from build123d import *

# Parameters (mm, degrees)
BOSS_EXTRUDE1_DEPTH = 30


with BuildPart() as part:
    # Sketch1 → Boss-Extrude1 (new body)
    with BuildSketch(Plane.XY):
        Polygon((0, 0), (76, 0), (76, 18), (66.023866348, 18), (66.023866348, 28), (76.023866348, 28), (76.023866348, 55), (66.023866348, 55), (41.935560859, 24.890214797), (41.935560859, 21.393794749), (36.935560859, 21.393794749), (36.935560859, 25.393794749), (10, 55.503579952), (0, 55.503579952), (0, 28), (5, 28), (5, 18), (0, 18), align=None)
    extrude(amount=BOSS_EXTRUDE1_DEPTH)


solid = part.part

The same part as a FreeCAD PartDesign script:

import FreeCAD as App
import Part
import Sketcher

V = App.Vector

doc = App.newDocument("Part")
body = doc.addObject("PartDesign::Body", "Body")

# Sketch on XY plane
sketch1 = doc.addObject("Sketcher::SketchObject", "Sketch")
body.addObject(sketch1)
sketch1.AttachmentSupport = (doc.XY_Plane, [""])
sketch1.MapMode = "FlatFace"
sketch1.addGeometry(Part.LineSegment(V(0, 0, 0), V(76, 0, 0)), False)
sketch1.addGeometry(Part.LineSegment(V(76, 0, 0), V(76, 18, 0)), False)
sketch1.addGeometry(Part.LineSegment(V(76, 18, 0), V(66.023866, 18, 0)), False)
sketch1.addGeometry(Part.LineSegment(V(66.023866, 18, 0), V(66.023866, 28, 0)), False)
sketch1.addGeometry(Part.LineSegment(V(66.023866, 28, 0), V(76.023866, 28, 0)), False)
sketch1.addGeometry(Part.LineSegment(V(76.023866, 28, 0), V(76.023866, 55, 0)), False)
sketch1.addGeometry(Part.LineSegment(V(76.023866, 55, 0), V(66.023866, 55, 0)), False)
sketch1.addGeometry(Part.LineSegment(V(66.023866, 55, 0), V(41.935561, 24.890215, 0)), False)
sketch1.addGeometry(Part.LineSegment(V(41.935561, 24.890215, 0), V(41.935561, 21.393795, 0)), False)
sketch1.addGeometry(Part.LineSegment(V(41.935561, 21.393795, 0), V(36.935561, 21.393795, 0)), False)
sketch1.addGeometry(Part.LineSegment(V(36.935561, 21.393795, 0), V(36.935561, 25.393795, 0)), False)
sketch1.addGeometry(Part.LineSegment(V(36.935561, 25.393795, 0), V(10, 55.50358, 0)), False)
sketch1.addGeometry(Part.LineSegment(V(10, 55.50358, 0), V(0, 55.50358, 0)), False)
sketch1.addGeometry(Part.LineSegment(V(0, 55.50358, 0), V(0, 28, 0)), False)
sketch1.addGeometry(Part.LineSegment(V(0, 28, 0), V(5, 28, 0)), False)
sketch1.addGeometry(Part.LineSegment(V(5, 28, 0), V(5, 18, 0)), False)
sketch1.addGeometry(Part.LineSegment(V(5, 18, 0), V(0, 18, 0)), False)
sketch1.addGeometry(Part.LineSegment(V(0, 18, 0), V(0, 0, 0)), False)
sketch1.addConstraint(Sketcher.Constraint("Coincident", 0, 2, 1, 1))
sketch1.addConstraint(Sketcher.Constraint("Coincident", 1, 2, 2, 1))
sketch1.addConstraint(Sketcher.Constraint("Coincident", 2, 2, 3, 1))
sketch1.addConstraint(Sketcher.Constraint("Coincident", 3, 2, 4, 1))
sketch1.addConstraint(Sketcher.Constraint("Coincident", 4, 2, 5, 1))
sketch1.addConstraint(Sketcher.Constraint("Coincident", 5, 2, 6, 1))
sketch1.addConstraint(Sketcher.Constraint("Coincident", 6, 2, 7, 1))
sketch1.addConstraint(Sketcher.Constraint("Coincident", 7, 2, 8, 1))
sketch1.addConstraint(Sketcher.Constraint("Coincident", 8, 2, 9, 1))
sketch1.addConstraint(Sketcher.Constraint("Coincident", 9, 2, 10, 1))
sketch1.addConstraint(Sketcher.Constraint("Coincident", 10, 2, 11, 1))
sketch1.addConstraint(Sketcher.Constraint("Coincident", 11, 2, 12, 1))
sketch1.addConstraint(Sketcher.Constraint("Coincident", 12, 2, 13, 1))
sketch1.addConstraint(Sketcher.Constraint("Coincident", 13, 2, 14, 1))
sketch1.addConstraint(Sketcher.Constraint("Coincident", 14, 2, 15, 1))
sketch1.addConstraint(Sketcher.Constraint("Coincident", 15, 2, 16, 1))
sketch1.addConstraint(Sketcher.Constraint("Coincident", 16, 2, 17, 1))
sketch1.addConstraint(Sketcher.Constraint("Coincident", 17, 2, 0, 1))
sketch1.addConstraint(Sketcher.Constraint("Horizontal", 0))
sketch1.addConstraint(Sketcher.Constraint("Vertical", 1))
sketch1.addConstraint(Sketcher.Constraint("Horizontal", 2))
sketch1.addConstraint(Sketcher.Constraint("Vertical", 3))
sketch1.addConstraint(Sketcher.Constraint("Horizontal", 4))
sketch1.addConstraint(Sketcher.Constraint("Vertical", 5))
sketch1.addConstraint(Sketcher.Constraint("Horizontal", 6))
sketch1.addConstraint(Sketcher.Constraint("Vertical", 8))
sketch1.addConstraint(Sketcher.Constraint("Horizontal", 9))
sketch1.addConstraint(Sketcher.Constraint("Vertical", 10))
sketch1.addConstraint(Sketcher.Constraint("Horizontal", 12))
sketch1.addConstraint(Sketcher.Constraint("Vertical", 13))
sketch1.addConstraint(Sketcher.Constraint("Horizontal", 14))
sketch1.addConstraint(Sketcher.Constraint("Vertical", 15))
sketch1.addConstraint(Sketcher.Constraint("Horizontal", 16))
sketch1.addConstraint(Sketcher.Constraint("Vertical", 17))
sketch1.addConstraint(Sketcher.Constraint("Coincident", 17, 2, -1, 1))
sketch1.addConstraint(Sketcher.Constraint("PointOnObject", 12, 2, -2))
sketch1.addConstraint(Sketcher.Constraint("Horizontal", 4, 2, 13, 2))
sketch1.addConstraint(Sketcher.Constraint("Horizontal", 2, 2, 15, 2))
sketch1.addConstraint(Sketcher.Constraint("Vertical", 3, 2, 6, 2))
sketch1.addConstraint(Sketcher.Constraint("Equal", 6, 12))
sketch1.addConstraint(Sketcher.Constraint("Equal", 9, 14))
sketch1.addConstraint(Sketcher.Constraint("Equal", 12, 3))
sketch1.addConstraint(Sketcher.Constraint("DistanceX", 0, 1, 0, 2, 76.0))
sketch1.addConstraint(Sketcher.Constraint("DistanceX", 4, 1, 4, 2, 10.0))
sketch1.addConstraint(Sketcher.Constraint("DistanceX", 9, 2, 9, 1, 5.0))
sketch1.addConstraint(Sketcher.Constraint("DistanceY", 1, 1, 1, 2, 18.0))
sketch1.addConstraint(Sketcher.Constraint("DistanceY", 5, 1, 5, 2, 27.0))
sketch1.addConstraint(Sketcher.Constraint("DistanceY", 10, 1, 10, 2, 4.0))
sketch1.addConstraint(Sketcher.Constraint("DistanceY", 8, 2, 8, 1, 3.49642))
sketch1.addConstraint(Sketcher.Constraint("DistanceY", 13, 2, 13, 1, 27.50358))
sketch1.addConstraint(Sketcher.Constraint("Distance", 11, 40.39955))
sketch1.addConstraint(Sketcher.Constraint("DistanceX", 2, 2, 2, 1, 9.976134))
sketch1.addConstraint(Sketcher.Constraint("DistanceX", -1, 1, 7, 2, 41.935561))
pad1 = doc.addObject("PartDesign::Pad", "Pad")
body.addObject(pad1)
pad1.Profile = sketch1
pad1.Length = 30

doc.recompute()
